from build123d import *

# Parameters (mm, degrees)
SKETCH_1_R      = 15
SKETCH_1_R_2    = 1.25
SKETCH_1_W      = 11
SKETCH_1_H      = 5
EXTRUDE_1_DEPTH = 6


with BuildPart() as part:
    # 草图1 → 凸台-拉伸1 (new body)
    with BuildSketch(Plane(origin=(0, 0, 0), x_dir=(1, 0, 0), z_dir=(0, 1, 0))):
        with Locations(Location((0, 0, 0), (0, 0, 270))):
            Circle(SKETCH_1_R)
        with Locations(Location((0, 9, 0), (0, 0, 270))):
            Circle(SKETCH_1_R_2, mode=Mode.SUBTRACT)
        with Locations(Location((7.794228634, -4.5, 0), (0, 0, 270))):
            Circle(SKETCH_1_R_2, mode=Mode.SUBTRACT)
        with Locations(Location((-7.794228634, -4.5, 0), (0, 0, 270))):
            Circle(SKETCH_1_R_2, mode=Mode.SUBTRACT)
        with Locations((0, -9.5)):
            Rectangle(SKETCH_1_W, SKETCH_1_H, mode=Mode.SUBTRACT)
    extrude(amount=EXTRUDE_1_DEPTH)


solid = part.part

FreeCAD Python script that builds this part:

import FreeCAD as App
import Part
import Sketcher

V = App.Vector


def add_polygon(sketch, points):
    """Adds a closed chain of lines whose ends are joined by coincident constraints."""
    first, n = sketch.GeometryCount, len(points)
    for a, b in zip(points, points[1:] + points[:1]):
        sketch.addGeometry(Part.LineSegment(App.Vector(*a, 0), App.Vector(*b, 0)), False)
    for i in range(n):
        sketch.addConstraint(Sketcher.Constraint("Coincident", first + i, 2, first + (i + 1) % n, 1))

doc = App.newDocument("Part")
params = doc.addObject("Spreadsheet::Sheet", "Params")
for row, (alias, value) in enumerate([
    ("sketch1_diameter", "30 mm"),
    ("sketch1_diameter2", "2.5 mm"),
    ("sketch1_width", "11 mm"),
    ("sketch1_height", "5 mm"),
    ("pad1_length", "6 mm"),
], start=1):
    params.set(f"A{row}", alias)
    params.set(f"B{row}", "=" + value)
    params.setAlias(f"B{row}", alias)

body = doc.addObject("PartDesign::Body", "Body")

sketch1 = body.newObject("Sketcher::SketchObject", "Sketch")
sketch1.AttachmentSupport = (doc.getObject("XZ_Plane"), [""])
sketch1.MapMode = "FlatFace"
sketch1.addGeometry(Part.Circle(V(0, 0, 0), V(0, 0, 1), 15), False)
sketch1.addGeometry(Part.Circle(V(0, -9, 0), V(0, 0, 1), 1.25), False)
sketch1.addGeometry(Part.Circle(V(-7.794229, 4.5, 0), V(0, 0, 1), 1.25), False)
add_polygon(sketch1, [(5.5, 12), (-5.5, 12), (-5.5, 7), (5.5, 7)])
sketch1.addGeometry(Part.Circle(V(7.794229, 4.5, 0), V(0, 0, 1), 1.25), False)
sketch1.addConstraint(Sketcher.Constraint("Horizontal", 3))
sketch1.addConstraint(Sketcher.Constraint("Vertical", 4))
sketch1.addConstraint(Sketcher.Constraint("Horizontal", 5))
sketch1.addConstraint(Sketcher.Constraint("Vertical", 6))
sketch1.addConstraint(Sketcher.Constraint("Coincident", 0, 3, -1, 1))
sketch1.addConstraint(Sketcher.Constraint("Equal", 1, 2))
sketch1.addConstraint(Sketcher.Constraint("Equal", 2, 7))
sketch1.addConstraint(Sketcher.Constraint("Symmetric", 2, 3, 7, 3, -2))
sketch1.addConstraint(Sketcher.Constraint("PointOnObject", 1, 3, -2))
sketch1.addConstraint(Sketcher.Constraint("Diameter", 0, 30.0))
sketch1.addConstraint(Sketcher.Constraint("Diameter", 1, 2.5))
sketch1.addConstraint(Sketcher.Constraint("DistanceX", 3, 2, 3, 1, 11.0))
sketch1.addConstraint(Sketcher.Constraint("DistanceY", 4, 2, 4, 1, 5.0))
sketch1.addConstraint(Sketcher.Constraint("DistanceY", 1, 3, -1, 1, 9.0))
sketch1.addConstraint(Sketcher.Constraint("DistanceY", -1, 1, 3, 2, 12.0))
sketch1.addConstraint(Sketcher.Constraint("DistanceY", -1, 1, 2, 3, 4.5))
sketch1.addConstraint(Sketcher.Constraint("DistanceX", 3, 2, -1, 1, 5.5))
sketch1.addConstraint(Sketcher.Constraint("DistanceX", 2, 3, -1, 1, 7.794229))
sketch1.setExpression("Constraints[13]", "Params.sketch1_diameter")
sketch1.setExpression("Constraints[14]", "Params.sketch1_diameter2")
sketch1.setExpression("Constraints[15]", "Params.sketch1_width")
sketch1.setExpression("Constraints[16]", "Params.sketch1_height")
pad1 = body.newObject("PartDesign::Pad", "Pad")
pad1.Profile = sketch1
pad1.setExpression("Length", "Params.pad1_length")
pad1.Reversed = True

doc.recompute()
